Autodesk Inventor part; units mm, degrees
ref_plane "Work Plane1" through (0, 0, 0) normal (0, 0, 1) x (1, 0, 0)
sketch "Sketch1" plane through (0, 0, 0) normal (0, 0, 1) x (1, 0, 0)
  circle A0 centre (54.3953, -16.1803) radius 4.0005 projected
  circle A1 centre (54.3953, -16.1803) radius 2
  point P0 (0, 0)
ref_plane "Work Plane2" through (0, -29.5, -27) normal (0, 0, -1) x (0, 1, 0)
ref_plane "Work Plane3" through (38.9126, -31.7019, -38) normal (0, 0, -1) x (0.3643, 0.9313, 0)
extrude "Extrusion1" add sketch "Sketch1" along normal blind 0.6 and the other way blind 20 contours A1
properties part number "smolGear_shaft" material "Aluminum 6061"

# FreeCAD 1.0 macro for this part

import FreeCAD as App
import Part
import Sketcher
Q = App.Units.Quantity

doc = App.newDocument("Part")
body = doc.addObject("PartDesign::Body", "Body")

# Sketch on XY plane
sketch1 = body.newObject("Sketcher::SketchObject", "Sketch")
sketch1.AttachmentSupport = (doc.getObject("XY_Plane"), [""])
sketch1.MapMode = "FlatFace"
sketch1.addGeometry(Part.Circle(App.Vector(54.4, -16.2, 0), App.Vector(0, 0, 1), 2), False)
sketch1.addConstraint([
    Sketcher.Constraint("Diameter", 0, Q("4 mm")),
    Sketcher.Constraint("DistanceX", -1, 1, 0, 3, Q("54.3953 mm")),
    Sketcher.Constraint("DistanceY", 0, 3, -1, 1, Q("16.1803 mm")),
])
pad1 = body.newObject("PartDesign::Pad", "Pad")
pad1.Profile = sketch1
pad1.Type = "TwoLengths"
pad1.Length = 0.6
pad1.Length2 = 20

doc.recompute()
